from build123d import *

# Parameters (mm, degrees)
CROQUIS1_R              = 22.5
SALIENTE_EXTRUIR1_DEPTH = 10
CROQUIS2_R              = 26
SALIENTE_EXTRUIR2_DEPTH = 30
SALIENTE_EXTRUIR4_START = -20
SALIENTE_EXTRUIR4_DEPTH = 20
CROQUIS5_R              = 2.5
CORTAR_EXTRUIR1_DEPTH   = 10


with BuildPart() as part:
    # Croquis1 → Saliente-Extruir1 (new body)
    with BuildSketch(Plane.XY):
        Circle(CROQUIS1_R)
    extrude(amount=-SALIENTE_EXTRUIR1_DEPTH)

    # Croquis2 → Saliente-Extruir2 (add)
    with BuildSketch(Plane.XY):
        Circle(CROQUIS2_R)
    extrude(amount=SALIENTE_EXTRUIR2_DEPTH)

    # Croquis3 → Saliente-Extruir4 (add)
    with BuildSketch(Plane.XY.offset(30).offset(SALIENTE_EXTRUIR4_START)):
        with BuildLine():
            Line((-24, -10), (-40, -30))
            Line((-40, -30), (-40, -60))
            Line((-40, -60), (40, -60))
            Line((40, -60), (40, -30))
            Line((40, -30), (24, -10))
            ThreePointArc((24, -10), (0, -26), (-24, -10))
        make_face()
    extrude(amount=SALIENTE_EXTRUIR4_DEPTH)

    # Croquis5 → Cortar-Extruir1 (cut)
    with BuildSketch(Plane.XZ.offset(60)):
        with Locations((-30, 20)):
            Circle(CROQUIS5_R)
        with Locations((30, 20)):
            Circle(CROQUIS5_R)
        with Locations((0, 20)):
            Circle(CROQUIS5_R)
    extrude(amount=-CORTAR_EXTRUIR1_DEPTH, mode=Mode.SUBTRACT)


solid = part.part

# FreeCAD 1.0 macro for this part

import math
import FreeCAD as App
import Part
import Sketcher
Q = App.Units.Quantity

doc = App.newDocument("Part")
body = doc.addObject("PartDesign::Body", "Body")

sketch1 = doc.addObject("Sketcher::SketchObject", "Sketch")
body.addObject(sketch1)
sketch1.AttachmentSupport = (doc.XY_Plane, [""])
sketch1.MapMode = "FlatFace"
sketch1.addGeometry(Part.Circle(App.Vector(0, 0, 0), App.Vector(0, 0, 1), 22.5), False)
sketch1.addConstraint(Sketcher.Constraint("Coincident", 0, 3, -1, 1))
sketch1.addConstraint(Sketcher.Constraint("Diameter", 0, Q("45 mm")))
pad1 = doc.addObject("PartDesign::Pad", "Pad")
body.addObject(pad1)
pad1.Profile = sketch1
pad1.Length = 10
pad1.Reversed = True

sketch2 = doc.addObject("Sketcher::SketchObject", "Sketch001")
body.addObject(sketch2)
sketch2.AttachmentSupport = (doc.XY_Plane, [""])
sketch2.MapMode = "FlatFace"
sketch2.addGeometry(Part.Circle(App.Vector(0, 0, 0), App.Vector(0, 0, 1), 26), False)
sketch2.addConstraint(Sketcher.Constraint("Coincident", 0, 3, -1, 1))
sketch2.addConstraint(Sketcher.Constraint("Diameter", 0, Q("52 mm")))
pad2 = doc.addObject("PartDesign::Pad", "Pad001")
body.addObject(pad2)
pad2.Profile = sketch2
pad2.Length = 30

sketch3 = doc.addObject("Sketcher::SketchObject", "Sketch002")
body.addObject(sketch3)
sketch3.AttachmentSupport = (doc.XY_Plane, [""])
sketch3.MapMode = "FlatFace"
sketch3.AttachmentOffset = App.Placement(App.Vector(0, 0, 10), App.Rotation())
sketch3.addGeometry(Part.LineSegment(App.Vector(-24, -10, 0), App.Vector(-40, -30, 0)), False)
sketch3.addGeometry(Part.LineSegment(App.Vector(-40, -30, 0), App.Vector(-40, -60, 0)), False)
sketch3.addGeometry(Part.LineSegment(App.Vector(-40, -60, 0), App.Vector(40, -60, 0)), False)
sketch3.addGeometry(Part.LineSegment(App.Vector(40, -60, 0), App.Vector(40, -30, 0)), False)
sketch3.addGeometry(Part.LineSegment(App.Vector(40, -30, 0), App.Vector(24, -10, 0)), False)
sketch3.addGeometry(Part.ArcOfCircle(Part.Circle(App.Vector(0, 0, 0), App.Vector(0, 0, 1), 26), math.radians(-157.380135), math.radians(-22.619865)), False)
sketch3.addConstraint(Sketcher.Constraint("Coincident", 0, 2, 1, 1))
sketch3.addConstraint(Sketcher.Constraint("Coincident", 1, 2, 2, 1))
sketch3.addConstraint(Sketcher.Constraint("Coincident", 2, 2, 3, 1))
sketch3.addConstraint(Sketcher.Constraint("Coincident", 3, 2, 4, 1))
sketch3.addConstraint(Sketcher.Constraint("Coincident", 4, 2, 5, 2))
sketch3.addConstraint(Sketcher.Constraint("Coincident", 5, 1, 0, 1))
sketch3.addConstraint(Sketcher.Constraint("Vertical", 1))
sketch3.addConstraint(Sketcher.Constraint("Horizontal", 2))
sketch3.addConstraint(Sketcher.Constraint("Vertical", 3))
sketch3.addConstraint(Sketcher.Constraint("Coincident", 5, 3, -1, 1))
sketch3.addConstraint(Sketcher.Constraint("Symmetric", 0, 2, 3, 2, -2))
sketch3.addConstraint(Sketcher.Constraint("Horizontal", 4, 2, 5, 1))
sketch3.addConstraint(Sketcher.Constraint("Radius", 5, Q("26 mm")))
sketch3.addConstraint(Sketcher.Constraint("DistanceX", 2, 1, 2, 2, Q("80 mm")))
sketch3.addConstraint(Sketcher.Constraint("DistanceY", 1, 2, 1, 1, Q("30 mm")))
sketch3.addConstraint(Sketcher.Constraint("DistanceY", 0, 2, -1, 1, Q("30 mm")))
sketch3.addConstraint(Sketcher.Constraint("DistanceX", -1, 1, 4, 2, Q("24 mm")))
pad3 = doc.addObject("PartDesign::Pad", "Pad002")
body.addObject(pad3)
pad3.Profile = sketch3
pad3.Length = 20

sketch4 = doc.addObject("Sketcher::SketchObject", "Sketch003")
body.addObject(sketch4)
sketch4.AttachmentSupport = (doc.XZ_Plane, [""])
sketch4.MapMode = "FlatFace"
sketch4.AttachmentOffset = App.Placement(App.Vector(0, 0, 60), App.Rotation())
sketch4.addGeometry(Part.Circle(App.Vector(-30, 20, 0), App.Vector(0, 0, 1), 2.5), False)
sketch4.addGeometry(Part.Circle(App.Vector(30, 20, 0), App.Vector(0, 0, 1), 2.5), False)
sketch4.addGeometry(Part.Circle(App.Vector(0, 20, 0), App.Vector(0, 0, 1), 2.5), False)
sketch4.addConstraint(Sketcher.Constraint("Equal", 0, 1))
sketch4.addConstraint(Sketcher.Constraint("Equal", 1, 2))
sketch4.addConstraint(Sketcher.Constraint("Symmetric", 0, 3, 1, 3, -2))
sketch4.addConstraint(Sketcher.Constraint("PointOnObject", 2, 3, -2))
sketch4.addConstraint(Sketcher.Constraint("Horizontal", 1, 3, 2, 3))
sketch4.addConstraint(Sketcher.Constraint("Diameter", 0, Q("5 mm")))
sketch4.addConstraint(Sketcher.Constraint("DistanceX", 0, 3, -1, 1, Q("30 mm")))
sketch4.addConstraint(Sketcher.Constraint("DistanceY", -1, 1, 0, 3, Q("20 mm")))
pocket1 = doc.addObject("PartDesign::Pocket", "Pocket")
body.addObject(pocket1)
pocket1.Profile = sketch4
pocket1.Length = 10

doc.recompute()
